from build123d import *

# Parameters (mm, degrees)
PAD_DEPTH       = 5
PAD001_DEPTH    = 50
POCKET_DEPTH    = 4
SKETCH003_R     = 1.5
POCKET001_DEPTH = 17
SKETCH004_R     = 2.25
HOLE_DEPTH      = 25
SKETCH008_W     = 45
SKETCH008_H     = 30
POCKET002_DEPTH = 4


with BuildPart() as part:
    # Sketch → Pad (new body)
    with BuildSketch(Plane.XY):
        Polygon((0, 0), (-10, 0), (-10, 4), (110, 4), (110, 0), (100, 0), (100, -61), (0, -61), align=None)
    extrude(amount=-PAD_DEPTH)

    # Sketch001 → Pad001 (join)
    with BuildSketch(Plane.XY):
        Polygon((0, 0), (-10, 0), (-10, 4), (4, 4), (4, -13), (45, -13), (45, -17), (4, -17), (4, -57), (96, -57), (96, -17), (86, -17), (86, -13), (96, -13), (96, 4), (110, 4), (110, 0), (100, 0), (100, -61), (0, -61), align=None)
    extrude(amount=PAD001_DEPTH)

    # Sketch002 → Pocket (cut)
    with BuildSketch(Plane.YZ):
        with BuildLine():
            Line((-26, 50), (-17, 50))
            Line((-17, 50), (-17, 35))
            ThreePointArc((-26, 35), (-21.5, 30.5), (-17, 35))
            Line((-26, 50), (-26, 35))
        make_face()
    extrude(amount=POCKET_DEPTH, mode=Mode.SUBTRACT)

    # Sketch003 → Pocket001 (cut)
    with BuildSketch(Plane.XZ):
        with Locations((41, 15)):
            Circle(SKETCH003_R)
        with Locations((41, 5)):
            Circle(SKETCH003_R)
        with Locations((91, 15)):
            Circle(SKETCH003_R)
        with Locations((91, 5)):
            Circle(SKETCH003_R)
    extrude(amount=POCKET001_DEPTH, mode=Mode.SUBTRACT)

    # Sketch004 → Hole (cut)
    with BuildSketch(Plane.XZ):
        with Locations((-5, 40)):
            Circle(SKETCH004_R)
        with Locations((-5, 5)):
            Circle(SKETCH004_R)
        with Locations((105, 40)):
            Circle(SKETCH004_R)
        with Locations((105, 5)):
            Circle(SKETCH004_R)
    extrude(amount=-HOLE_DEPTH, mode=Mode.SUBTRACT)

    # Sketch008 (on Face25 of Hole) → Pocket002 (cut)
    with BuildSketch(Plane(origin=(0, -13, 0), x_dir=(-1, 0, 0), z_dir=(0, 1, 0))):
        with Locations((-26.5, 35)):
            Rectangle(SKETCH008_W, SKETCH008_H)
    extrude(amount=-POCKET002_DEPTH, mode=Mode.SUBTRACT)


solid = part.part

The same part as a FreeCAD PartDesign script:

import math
import FreeCAD as App
import Part
import Sketcher

V = App.Vector
Q = App.Units.Quantity


def add_polygon(sketch, points):
    """Adds a closed chain of lines whose ends are joined by coincident constraints."""
    first, n = sketch.GeometryCount, len(points)
    for a, b in zip(points, points[1:] + points[:1]):
        sketch.addGeometry(Part.LineSegment(App.Vector(*a, 0), App.Vector(*b, 0)), False)
    for i in range(n):
        sketch.addConstraint(Sketcher.Constraint("Coincident", first + i, 2, first + (i + 1) % n, 1))

doc = App.newDocument("Part")
body = doc.addObject("PartDesign::Body", "Body")

# Sketch on XY plane
sketch1 = doc.addObject("Sketcher::SketchObject", "Sketch")
body.addObject(sketch1)
sketch1.AttachmentSupport = (doc.XY_Plane, [""])
sketch1.MapMode = "FlatFace"
add_polygon(sketch1, [(-10, 0), (0, 0), (0, -61), (100, -61), (100, 0), (110, 0), (110, 4), (-10, 4)])  # lines 0-7
sketch1.addConstraint([
    Sketcher.Constraint("Horizontal", 0),
    Sketcher.Constraint("Vertical", 1),
    Sketcher.Constraint("Horizontal", 2),
    Sketcher.Constraint("Vertical", 3),
    Sketcher.Constraint("Horizontal", 4),
    Sketcher.Constraint("Vertical", 5),
    Sketcher.Constraint("Horizontal", 6),
    Sketcher.Constraint("Vertical", 7),
    Sketcher.Constraint("Coincident", 0, 2, -1, 1),
    Sketcher.Constraint("PointOnObject", 3, 2, -1),
    Sketcher.Constraint("Equal", 0, 4),
    Sketcher.Constraint("DistanceX", 0, 1, 0, 2, Q("10 mm")),
    Sketcher.Constraint("DistanceX", 2, 1, 2, 2, Q("100 mm")),
    Sketcher.Constraint("DistanceY", 1, 2, 1, 1, Q("61 mm")),
    Sketcher.Constraint("DistanceY", 5, 1, 5, 2, Q("4 mm")),
])
pad1 = doc.addObject("PartDesign::Pad", "Pad")
body.addObject(pad1)
pad1.Profile = sketch1
pad1.Length = 5
pad1.Reversed = True

# Sketch on XY plane
sketch2 = doc.addObject("Sketcher::SketchObject", "Sketch001")
body.addObject(sketch2)
sketch2.AttachmentSupport = (doc.XY_Plane, [""])
sketch2.MapMode = "FlatFace"
add_polygon(sketch2, [(-10, 0), (0, 0), (0, -61), (100, -61), (100, 0), (110, 0), (110, 4), (96, 4), (96, -13), (86, -13), (86, -17), (96, -17), (96, -57), (4, -57), (4, -17), (45, -17), (45, -13), (4, -13), (4, 4), (-10, 4)])  # lines 0-19
sketch2.addConstraint([
    Sketcher.Constraint("Horizontal", 0),
    Sketcher.Constraint("Vertical", 1),
    Sketcher.Constraint("Horizontal", 2),
    Sketcher.Constraint("Vertical", 3),
    Sketcher.Constraint("Horizontal", 4),
    Sketcher.Constraint("Vertical", 5),
    Sketcher.Constraint("Horizontal", 6),
    Sketcher.Constraint("Vertical", 7),
    Sketcher.Constraint("Horizontal", 8),
    Sketcher.Constraint("Vertical", 9),
    Sketcher.Constraint("Horizontal", 10),
    Sketcher.Constraint("Vertical", 11),
    Sketcher.Constraint("Horizontal", 12),
    Sketcher.Constraint("Vertical", 13),
    Sketcher.Constraint("Horizontal", 14),
    Sketcher.Constraint("Vertical", 15),
    Sketcher.Constraint("Horizontal", 16),
    Sketcher.Constraint("Vertical", 17),
    Sketcher.Constraint("Horizontal", 18),
    Sketcher.Constraint("Vertical", 19),
    Sketcher.Constraint("Coincident", 0, 2, -1, 1),
    Sketcher.Constraint("PointOnObject", 3, 2, -1),
    Sketcher.Constraint("Horizontal", 10, 2, 13, 2),
    Sketcher.Constraint("Horizontal", 8, 2, 15, 2),
    Sketcher.Constraint("Horizontal", 6, 2, 17, 2),
    Sketcher.Constraint("Vertical", 7, 2, 10, 2),
    Sketcher.Constraint("Vertical", 13, 2, 16, 2),
    Sketcher.Constraint("Equal", 0, 4),
    Sketcher.Constraint("Equal", 4, 8),
    Sketcher.Constraint("Equal", 6, 18),
    Sketcher.Constraint("Equal", 5, 9),
    Sketcher.Constraint("DistanceX", 0, 1, 0, 2, Q("10 mm")),
    Sketcher.Constraint("DistanceX", 2, 1, 2, 2, Q("100 mm")),
    Sketcher.Constraint("DistanceX", 6, 2, 6, 1, Q("14 mm")),
    Sketcher.Constraint("DistanceX", 14, 1, 14, 2, Q("41 mm")),
    Sketcher.Constraint("DistanceY", 1, 2, 1, 1, Q("61 mm")),
    Sketcher.Constraint("DistanceY", 5, 1, 5, 2, Q("4 mm")),
    Sketcher.Constraint("DistanceY", 7, 2, 7, 1, Q("17 mm")),
    Sketcher.Constraint("DistanceY", 11, 2, 11, 1, Q("40 mm")),
])
pad2 = doc.addObject("PartDesign::Pad", "Pad001")
body.addObject(pad2)
pad2.Profile = sketch2
pad2.Length = 50

# Sketch on YZ plane
sketch3 = doc.addObject("Sketcher::SketchObject", "Sketch002")
body.addObject(sketch3)
sketch3.AttachmentSupport = (doc.YZ_Plane, [""])
sketch3.MapMode = "FlatFace"
sketch3.addGeometry([
    Part.LineSegment(V(-17, 50, 0), V(-26, 50, 0)),
    Part.LineSegment(V(-26, 50, 0), V(-26, 35, 0)),
    Part.ArcOfCircle(Part.Circle(V(-21.5, 35, 0), V(0, 0, 1), 4.5), math.radians(180), math.radians(360)),
    Part.LineSegment(V(-17, 35, 0), V(-17, 50, 0)),
], False)
sketch3.addConstraint([
    Sketcher.Constraint("Coincident", 0, 2, 1, 1),
    Sketcher.Constraint("Tangent", 1, 2, 2, 1),
    Sketcher.Constraint("Tangent", 2, 2, 3, 1),
    Sketcher.Constraint("Coincident", 3, 2, 0, 1),
    Sketcher.Constraint("Horizontal", 0),
    Sketcher.Constraint("Vertical", 1),
    Sketcher.Constraint("Vertical", 3),
    Sketcher.Constraint("Radius", 2, Q("4.5 mm")),
    Sketcher.Constraint("DistanceY", 1, 2, 1, 1, Q("15 mm")),
    Sketcher.Constraint("DistanceY", -1, 1, 2, 3, Q("35 mm")),
    Sketcher.Constraint("DistanceX", 0, 2, -1, 1, Q("26 mm")),
])
pocket1 = doc.addObject("PartDesign::Pocket", "Pocket")
body.addObject(pocket1)
pocket1.Profile = sketch3
pocket1.Length = 4
pocket1.Reversed = True

# Sketch on XZ plane
sketch4 = doc.addObject("Sketcher::SketchObject", "Sketch003")
body.addObject(sketch4)
sketch4.AttachmentSupport = (doc.XZ_Plane, [""])
sketch4.MapMode = "FlatFace"
sketch4.addGeometry([
    Part.Circle(V(41, 15, 0), V(0, 0, 1), 1.5),
    Part.Circle(V(41, 5, 0), V(0, 0, 1), 1.5),
    Part.Circle(V(91, 15, 0), V(0, 0, 1), 1.5),
    Part.Circle(V(91, 5, 0), V(0, 0, 1), 1.5),
], False)
sketch4.addConstraint([
    Sketcher.Constraint("Equal", 0, 1),
    Sketcher.Constraint("Equal", 1, 2),
    Sketcher.Constraint("Equal", 2, 3),
    Sketcher.Constraint("Horizontal", 0, 3, 2, 3),
    Sketcher.Constraint("Horizontal", 1, 3, 3, 3),
    Sketcher.Constraint("Vertical", 0, 3, 1, 3),
    Sketcher.Constraint("Vertical", 2, 3, 3, 3),
    Sketcher.Constraint("Diameter", 0, Q("3 mm")),
    Sketcher.Constraint("DistanceX", -1, 1, 0, 3, Q("41 mm")),
    Sketcher.Constraint("DistanceY", -1, 1, 0, 3, Q("15 mm")),
    Sketcher.Constraint("DistanceY", -1, 1, 1, 3, Q("5 mm")),
    Sketcher.Constraint("DistanceX", -1, 1, 2, 3, Q("91 mm")),
])
pocket2 = doc.addObject("PartDesign::Pocket", "Pocket001")
body.addObject(pocket2)
pocket2.Profile = sketch4
pocket2.Length = 17
pocket2.Reversed = True

# Sketch on XZ plane
sketch5 = doc.addObject("Sketcher::SketchObject", "Sketch004")
body.addObject(sketch5)
sketch5.AttachmentSupport = (doc.XZ_Plane, [""])
sketch5.MapMode = "FlatFace"
sketch5.addGeometry([
    Part.Circle(V(-5, 40, 0), V(0, 0, 1), 2.2),
    Part.Circle(V(-5, 5, 0), V(0, 0, 1), 2.2),
    Part.Circle(V(105, 40, 0), V(0, 0, 1), 2.2),
    Part.Circle(V(105, 5, 0), V(0, 0, 1), 2.2),
], False)
sketch5.addConstraint([
    Sketcher.Constraint("Equal", 0, 1),
    Sketcher.Constraint("Equal", 1, 2),
    Sketcher.Constraint("Equal", 2, 3),
    Sketcher.Constraint("Horizontal", 0, 3, 2, 3),
    Sketcher.Constraint("Horizontal", 1, 3, 3, 3),
    Sketcher.Constraint("Vertical", 0, 3, 1, 3),
    Sketcher.Constraint("Vertical", 2, 3, 3, 3),
    Sketcher.Constraint("Diameter", 0, Q("4.5 mm")),
    Sketcher.Constraint("DistanceX", 0, 3, -1, 1, Q("5 mm")),
    Sketcher.Constraint("DistanceY", -1, 1, 0, 3, Q("40 mm")),
    Sketcher.Constraint("DistanceY", -1, 1, 1, 3, Q("5 mm")),
    Sketcher.Constraint("DistanceX", -1, 1, 2, 3, Q("105 mm")),
])
pocket3 = doc.addObject("PartDesign::Pocket", "Pocket002")
body.addObject(pocket3)
pocket3.Profile = sketch5
pocket3.Length = 25

# Sketch on XZ plane
sketch6 = doc.addObject("Sketcher::SketchObject", "Sketch005")
body.addObject(sketch6)
sketch6.AttachmentSupport = (doc.XZ_Plane, [""])
sketch6.MapMode = "FlatFace"
sketch6.AttachmentOffset = App.Placement(V(0, 0, 13), App.Rotation())
add_polygon(sketch6, [(49, 50), (49, 20), (4, 20), (4, 50)])  # lines 0-3
sketch6.addConstraint([
    Sketcher.Constraint("Vertical", 0),
    Sketcher.Constraint("Horizontal", 1),
    Sketcher.Constraint("Vertical", 2),
    Sketcher.Constraint("Horizontal", 3),
    Sketcher.Constraint("DistanceX", 1, 2, 1, 1, Q("45 mm")),
    Sketcher.Constraint("DistanceY", 0, 2, 0, 1, Q("30 mm")),
    Sketcher.Constraint("DistanceX", -1, 1, 0, 2, Q("49 mm")),
    Sketcher.Constraint("DistanceY", -1, 1, 0, 2, Q("20 mm")),
])
pocket4 = doc.addObject("PartDesign::Pocket", "Pocket003")
body.addObject(pocket4)
pocket4.Profile = sketch6
pocket4.Length = 4
pocket4.Reversed = True

doc.recompute()
